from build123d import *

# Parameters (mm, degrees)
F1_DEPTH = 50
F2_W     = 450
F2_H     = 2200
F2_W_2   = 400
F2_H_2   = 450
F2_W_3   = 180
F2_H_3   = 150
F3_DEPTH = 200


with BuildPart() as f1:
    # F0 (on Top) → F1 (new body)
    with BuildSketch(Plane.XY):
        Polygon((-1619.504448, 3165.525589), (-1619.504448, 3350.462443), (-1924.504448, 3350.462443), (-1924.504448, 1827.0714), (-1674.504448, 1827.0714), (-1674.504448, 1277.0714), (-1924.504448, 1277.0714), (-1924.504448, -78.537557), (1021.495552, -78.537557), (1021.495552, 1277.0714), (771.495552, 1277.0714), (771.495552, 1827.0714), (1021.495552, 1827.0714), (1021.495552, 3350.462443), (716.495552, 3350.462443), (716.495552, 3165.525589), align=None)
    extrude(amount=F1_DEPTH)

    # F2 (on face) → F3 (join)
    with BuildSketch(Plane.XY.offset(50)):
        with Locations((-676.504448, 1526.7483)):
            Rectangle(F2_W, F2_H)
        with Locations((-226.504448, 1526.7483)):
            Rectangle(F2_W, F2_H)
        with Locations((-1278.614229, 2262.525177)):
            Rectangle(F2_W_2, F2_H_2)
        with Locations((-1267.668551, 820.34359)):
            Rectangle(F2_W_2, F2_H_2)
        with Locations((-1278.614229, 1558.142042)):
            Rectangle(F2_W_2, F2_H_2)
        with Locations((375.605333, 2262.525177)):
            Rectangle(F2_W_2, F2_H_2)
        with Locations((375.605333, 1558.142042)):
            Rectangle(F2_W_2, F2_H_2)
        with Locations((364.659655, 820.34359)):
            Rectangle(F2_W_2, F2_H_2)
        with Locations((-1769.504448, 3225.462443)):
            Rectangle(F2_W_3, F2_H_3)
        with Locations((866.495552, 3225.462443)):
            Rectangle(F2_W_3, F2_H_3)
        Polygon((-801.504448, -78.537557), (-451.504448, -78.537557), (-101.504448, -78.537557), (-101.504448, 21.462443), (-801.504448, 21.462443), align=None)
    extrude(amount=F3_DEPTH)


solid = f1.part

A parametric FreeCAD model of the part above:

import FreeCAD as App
import Part
import Sketcher

V = App.Vector
Q = App.Units.Quantity

doc = App.newDocument("Part")
body = doc.addObject("PartDesign::Body", "Body")

# Sketch on XY plane
sketch1 = body.newObject("Sketcher::SketchObject", "Sketch")
sketch1.AttachmentSupport = (doc.getObject("XY_Plane"), [""])
sketch1.MapMode = "FlatFace"
sketch1.addGeometry([
    Part.LineSegment(V(-1620, 3166, 0), V(-1620, 3350, 0)),  # 0
    Part.LineSegment(V(-1620, 3350, 0), V(-1925, 3350, 0)),  # 1
    Part.LineSegment(V(-1925, 3350, 0), V(-1925, 1827, 0)),  # 2
    Part.LineSegment(V(-1925, 1827, 0), V(-1675, 1827, 0)),  # 3
    Part.LineSegment(V(-1675, 1827, 0), V(-1675, 1277, 0)),  # 4
    Part.LineSegment(V(-1675, 1277, 0), V(-1925, 1277, 0)),  # 5
    Part.LineSegment(V(-1925, 1277, 0), V(-1925, -79, 0)),  # 6
    Part.LineSegment(V(-1925, -79, 0), V(1021, -79, 0)),  # 7
    Part.LineSegment(V(1021, -79, 0), V(1021, 1277, 0)),  # 8
    Part.LineSegment(V(1021, 1277, 0), V(771, 1277, 0)),  # 9
    Part.LineSegment(V(771, 1277, 0), V(771, 1827, 0)),  # 10
    Part.LineSegment(V(771, 1827, 0), V(1021, 1827, 0)),  # 11
    Part.LineSegment(V(1021, 1827, 0), V(1021, 3350, 0)),  # 12
    Part.LineSegment(V(1021, 3350, 0), V(716, 3350, 0)),  # 13
    Part.LineSegment(V(716, 3350, 0), V(716, 3166, 0)),  # 14
    Part.LineSegment(V(716, 3166, 0), V(-1620, 3166, 0)),  # 15
], False)
sketch1.addConstraint([
    Sketcher.Constraint("Coincident", 0, 2, 1, 1),
    Sketcher.Constraint("Coincident", 1, 2, 2, 1),
    Sketcher.Constraint("Coincident", 2, 2, 3, 1),
    Sketcher.Constraint("Coincident", 3, 2, 4, 1),
    Sketcher.Constraint("Coincident", 4, 2, 5, 1),
    Sketcher.Constraint("Coincident", 5, 2, 6, 1),
    Sketcher.Constraint("Coincident", 6, 2, 7, 1),
    Sketcher.Constraint("Coincident", 7, 2, 8, 1),
    Sketcher.Constraint("Coincident", 8, 2, 9, 1),
    Sketcher.Constraint("Coincident", 9, 2, 10, 1),
    Sketcher.Constraint("Coincident", 10, 2, 11, 1),
    Sketcher.Constraint("Coincident", 11, 2, 12, 1),
    Sketcher.Constraint("Coincident", 12, 2, 13, 1),
    Sketcher.Constraint("Coincident", 13, 2, 14, 1),
    Sketcher.Constraint("Coincident", 14, 2, 15, 1),
    Sketcher.Constraint("Coincident", 15, 2, 0, 1),
    Sketcher.Constraint("Vertical", 0),
    Sketcher.Constraint("Horizontal", 1),
    Sketcher.Constraint("Vertical", 2),
    Sketcher.Constraint("Horizontal", 3),
    Sketcher.Constraint("Vertical", 4),
    Sketcher.Constraint("Horizontal", 5),
    Sketcher.Constraint("Vertical", 6),
    Sketcher.Constraint("Horizontal", 7),
    Sketcher.Constraint("Vertical", 8),
    Sketcher.Constraint("Horizontal", 9),
    Sketcher.Constraint("Vertical", 10),
    Sketcher.Constraint("Horizontal", 11),
    Sketcher.Constraint("Vertical", 12),
    Sketcher.Constraint("Horizontal", 13),
    Sketcher.Constraint("Vertical", 14),
    Sketcher.Constraint("Horizontal", 15),
    Sketcher.Constraint("Horizontal", 5, 2, 8, 2),
    Sketcher.Constraint("Horizontal", 3, 2, 10, 2),
    Sketcher.Constraint("Horizontal", 1, 2, 12, 2),
    Sketcher.Constraint("Vertical", 2, 2, 5, 2),
    Sketcher.Constraint("Vertical", 8, 2, 11, 2),
    Sketcher.Constraint("Equal", 5, 9),
    Sketcher.Constraint("Equal", 1, 13),
    Sketcher.Constraint("DistanceX", 1, 2, 1, 1, Q("305 mm")),
    Sketcher.Constraint("DistanceX", 3, 1, 3, 2, Q("250 mm")),
    Sketcher.Constraint("DistanceX", 7, 1, 7, 2, Q("2946 mm")),
    Sketcher.Constraint("DistanceY", 4, 2, 4, 1, Q("550 mm")),
    Sketcher.Constraint("DistanceY", 6, 2, 1, 2, Q("3429 mm")),
    Sketcher.Constraint("DistanceY", -1, 1, 2, 2, Q("1827.0714 mm")),
    Sketcher.Constraint("DistanceY", 0, 1, 0, 2, Q("184.936854 mm")),
    Sketcher.Constraint("DistanceY", 2, 2, 2, 1, Q("1523.391043 mm")),
    Sketcher.Constraint("DistanceX", 0, 2, -1, 1, Q("1619.504448 mm")),
])
pad1 = body.newObject("PartDesign::Pad", "Pad")
pad1.Profile = sketch1
pad1.Length = 50

# Sketch on XY plane
sketch2 = body.newObject("Sketcher::SketchObject", "Sketch001")
sketch2.AttachmentSupport = (doc.getObject("XY_Plane"), [""])
sketch2.MapMode = "FlatFace"
sketch2.AttachmentOffset = App.Placement(V(0, 0, 50), App.Rotation())
sketch2.addGeometry([
    Part.LineSegment(V(-902, 2627, 0), V(-902, 427, 0)),  # 0
    Part.LineSegment(V(-902, 427, 0), V(-2, 427, 0)),  # 1
    Part.LineSegment(V(-2, 427, 0), V(-2, 2627, 0)),  # 2
    Part.LineSegment(V(-2, 2627, 0), V(-902, 2627, 0)),  # 3
    Part.LineSegment(V(-1479, 2488, 0), V(-1479, 2038, 0)),  # 4
    Part.LineSegment(V(-1479, 2038, 0), V(-1079, 2038, 0)),  # 5
    Part.LineSegment(V(-1079, 2038, 0), V(-1079, 2488, 0)),  # 6
    Part.LineSegment(V(-1079, 2488, 0), V(-1479, 2488, 0)),  # 7
    Part.LineSegment(V(-1468, 1045, 0), V(-1468, 595, 0)),  # 8
    Part.LineSegment(V(-1468, 595, 0), V(-1068, 595, 0)),  # 9
    Part.LineSegment(V(-1068, 595, 0), V(-1068, 1045, 0)),  # 10
    Part.LineSegment(V(-1068, 1045, 0), V(-1468, 1045, 0)),  # 11
    Part.LineSegment(V(-1479, 1783, 0), V(-1479, 1333, 0)),  # 12
    Part.LineSegment(V(-1479, 1333, 0), V(-1079, 1333, 0)),  # 13
    Part.LineSegment(V(-1079, 1333, 0), V(-1079, 1783, 0)),  # 14
    Part.LineSegment(V(-1079, 1783, 0), V(-1479, 1783, 0)),  # 15
    Part.LineSegment(V(176, 2488, 0), V(176, 2038, 0)),  # 16
    Part.LineSegment(V(176, 2038, 0), V(576, 2038, 0)),  # 17
    Part.LineSegment(V(576, 2038, 0), V(576, 2488, 0)),  # 18
    Part.LineSegment(V(576, 2488, 0), V(176, 2488, 0)),  # 19
    Part.LineSegment(V(176, 1783, 0), V(176, 1333, 0)),  # 20
    Part.LineSegment(V(176, 1333, 0), V(576, 1333, 0)),  # 21
    Part.LineSegment(V(576, 1333, 0), V(576, 1783, 0)),  # 22
    Part.LineSegment(V(576, 1783, 0), V(176, 1783, 0)),  # 23
    Part.LineSegment(V(165, 1045, 0), V(165, 595, 0)),  # 24
    Part.LineSegment(V(165, 595, 0), V(565, 595, 0)),  # 25
    Part.LineSegment(V(565, 595, 0), V(565, 1045, 0)),  # 26
    Part.LineSegment(V(565, 1045, 0), V(165, 1045, 0)),  # 27
    Part.LineSegment(V(-1860, 3300, 0), V(-1860, 3150, 0)),  # 28
    Part.LineSegment(V(-1860, 3150, 0), V(-1680, 3150, 0)),  # 29
    Part.LineSegment(V(-1680, 3150, 0), V(-1680, 3300, 0)),  # 30
    Part.LineSegment(V(-1680, 3300, 0), V(-1860, 3300, 0)),  # 31
    Part.LineSegment(V(776, 3300, 0), V(776, 3150, 0)),  # 32
    Part.LineSegment(V(776, 3150, 0), V(956, 3150, 0)),  # 33
    Part.LineSegment(V(956, 3150, 0), V(956, 3300, 0)),  # 34
    Part.LineSegment(V(956, 3300, 0), V(776, 3300, 0)),  # 35
    Part.LineSegment(V(-802, -79, 0), V(-102, -79, 0)),  # 36
    Part.LineSegment(V(-102, -79, 0), V(-102, 21, 0)),  # 37
    Part.LineSegment(V(-102, 21, 0), V(-802, 21, 0)),  # 38
    Part.LineSegment(V(-802, 21, 0), V(-802, -79, 0)),  # 39
], False)
sketch2.addConstraint([
    Sketcher.Constraint("Coincident", 0, 2, 1, 1),
    Sketcher.Constraint("Coincident", 1, 2, 2, 1),
    Sketcher.Constraint("Coincident", 2, 2, 3, 1),
    Sketcher.Constraint("Coincident", 3, 2, 0, 1),
    Sketcher.Constraint("Coincident", 4, 2, 5, 1),
    Sketcher.Constraint("Coincident", 5, 2, 6, 1),
    Sketcher.Constraint("Coincident", 6, 2, 7, 1),
    Sketcher.Constraint("Coincident", 7, 2, 4, 1),
    Sketcher.Constraint("Coincident", 8, 2, 9, 1),
    Sketcher.Constraint("Coincident", 9, 2, 10, 1),
    Sketcher.Constraint("Coincident", 10, 2, 11, 1),
    Sketcher.Constraint("Coincident", 11, 2, 8, 1),
    Sketcher.Constraint("Coincident", 12, 2, 13, 1),
    Sketcher.Constraint("Coincident", 13, 2, 14, 1),
    Sketcher.Constraint("Coincident", 14, 2, 15, 1),
    Sketcher.Constraint("Coincident", 15, 2, 12, 1),
    Sketcher.Constraint("Coincident", 16, 2, 17, 1),
    Sketcher.Constraint("Coincident", 17, 2, 18, 1),
    Sketcher.Constraint("Coincident", 18, 2, 19, 1),
    Sketcher.Constraint("Coincident", 19, 2, 16, 1),
    Sketcher.Constraint("Coincident", 20, 2, 21, 1),
    Sketcher.Constraint("Coincident", 21, 2, 22, 1),
    Sketcher.Constraint("Coincident", 22, 2, 23, 1),
    Sketcher.Constraint("Coincident", 23, 2, 20, 1),
    Sketcher.Constraint("Coincident", 24, 2, 25, 1),
    Sketcher.Constraint("Coincident", 25, 2, 26, 1),
    Sketcher.Constraint("Coincident", 26, 2, 27, 1),
    Sketcher.Constraint("Coincident", 27, 2, 24, 1),
    Sketcher.Constraint("Coincident", 28, 2, 29, 1),
    Sketcher.Constraint("Coincident", 29, 2, 30, 1),
    Sketcher.Constraint("Coincident", 30, 2, 31, 1),
    Sketcher.Constraint("Coincident", 31, 2, 28, 1),
    Sketcher.Constraint("Coincident", 32, 2, 33, 1),
    Sketcher.Constraint("Coincident", 33, 2, 34, 1),
    Sketcher.Constraint("Coincident", 34, 2, 35, 1),
    Sketcher.Constraint("Coincident", 35, 2, 32, 1),
    Sketcher.Constraint("Coincident", 36, 2, 37, 1),
    Sketcher.Constraint("Coincident", 37, 2, 38, 1),
    Sketcher.Constraint("Coincident", 38, 2, 39, 1),
    Sketcher.Constraint("Coincident", 39, 2, 36, 1),
    Sketcher.Constraint("Vertical", 0),
    Sketcher.Constraint("Horizontal", 1),
    Sketcher.Constraint("Vertical", 2),
    Sketcher.Constraint("Horizontal", 3),
    Sketcher.Constraint("Vertical", 4),
    Sketcher.Constraint("Horizontal", 5),
    Sketcher.Constraint("Vertical", 6),
    Sketcher.Constraint("Horizontal", 7),
    Sketcher.Constraint("Vertical", 8),
    Sketcher.Constraint("Horizontal", 9),
    Sketcher.Constraint("Vertical", 10),
    Sketcher.Constraint("Horizontal", 11),
    Sketcher.Constraint("Vertical", 12),
    Sketcher.Constraint("Horizontal", 13),
    Sketcher.Constraint("Vertical", 14),
    Sketcher.Constraint("Horizontal", 15),
    Sketcher.Constraint("Vertical", 16),
    Sketcher.Constraint("Horizontal", 17),
    Sketcher.Constraint("Vertical", 18),
    Sketcher.Constraint("Horizontal", 19),
    Sketcher.Constraint("Vertical", 20),
    Sketcher.Constraint("Horizontal", 21),
    Sketcher.Constraint("Vertical", 22),
    Sketcher.Constraint("Horizontal", 23),
    Sketcher.Constraint("Vertical", 24),
    Sketcher.Constraint("Horizontal", 25),
    Sketcher.Constraint("Vertical", 26),
    Sketcher.Constraint("Horizontal", 27),
    Sketcher.Constraint("Vertical", 28),
    Sketcher.Constraint("Horizontal", 29),
    Sketcher.Constraint("Vertical", 30),
    Sketcher.Constraint("Horizontal", 31),
    Sketcher.Constraint("Vertical", 32),
    Sketcher.Constraint("Horizontal", 33),
    Sketcher.Constraint("Vertical", 34),
    Sketcher.Constraint("Horizontal", 35),
    Sketcher.Constraint("Horizontal", 36),
    Sketcher.Constraint("Vertical", 37),
    Sketcher.Constraint("Horizontal", 38),
    Sketcher.Constraint("Vertical", 39),
    Sketcher.Constraint("Horizontal", 5, 2, 16, 2),
    Sketcher.Constraint("Horizontal", 7, 2, 18, 2),
    Sketcher.Constraint("Horizontal", 13, 2, 20, 2),
    Sketcher.Constraint("Horizontal", 15, 2, 22, 2),
    Sketcher.Constraint("Horizontal", 9, 2, 24, 2),
    Sketcher.Constraint("Horizontal", 11, 2, 26, 2),
    Sketcher.Constraint("Horizontal", 29, 2, 32, 2),
    Sketcher.Constraint("Horizontal", 31, 2, 34, 2),
    Sketcher.Constraint("Vertical", 7, 2, 12, 2),
    Sketcher.Constraint("Vertical", 6, 2, 13, 2),
    Sketcher.Constraint("Vertical", 19, 2, 20, 2),
    Sketcher.Constraint("Vertical", 18, 2, 21, 2),
    Sketcher.Constraint("Equal", 7, 9),
    Sketcher.Constraint("Equal", 15, 17),
    Sketcher.Constraint("Equal", 23, 25),
    Sketcher.Constraint("Equal", 31, 33),
    Sketcher.Constraint("Equal", 6, 8),
    Sketcher.Constraint("Equal", 10, 12),
    Sketcher.Constraint("DistanceX", 1, 1, 1, 2, Q("900 mm")),
    Sketcher.Constraint("DistanceX", 5, 1, 5, 2, Q("400 mm")),
    Sketcher.Constraint("DistanceX", 29, 1, 29, 2, Q("180 mm")),
    Sketcher.Constraint("DistanceX", 36, 1, 36, 2, Q("700 mm")),
    Sketcher.Constraint("DistanceY", 0, 2, 0, 1, Q("2200 mm")),
    Sketcher.Constraint("DistanceY", 4, 2, 4, 1, Q("450 mm")),
    Sketcher.Constraint("DistanceY", 28, 2, 28, 1, Q("150 mm")),
    Sketcher.Constraint("DistanceY", 37, 1, 37, 2, Q("100 mm")),
    Sketcher.Constraint("DistanceX", 28, 2, 3, 2, Q("958 mm")),
    Sketcher.Constraint("DistanceX", 2, 2, 32, 2, Q("778 mm")),
    Sketcher.Constraint("DistanceX", 36, 2, 1, 2, Q("100 mm")),
    Sketcher.Constraint("DistanceY", -1, 1, 0, 2, Q("426.7483 mm")),
    Sketcher.Constraint("DistanceX", 0, 2, -1, 1, Q("901.504448 mm")),
    Sketcher.Constraint("DistanceX", 4, 2, -1, 1, Q("1478.614229 mm")),
    Sketcher.Constraint("DistanceX", 8, 2, -1, 1, Q("1467.668551 mm")),
    Sketcher.Constraint("DistanceY", -1, 1, 8, 2, Q("595.34359 mm")),
    Sketcher.Constraint("DistanceY", -1, 1, 12, 2, Q("1333.142042 mm")),
    Sketcher.Constraint("DistanceX", 2, 2, 16, 2, Q("177.109781 mm")),
    Sketcher.Constraint("DistanceX", 24, 2, 20, 2, Q("10.945678 mm")),
    Sketcher.Constraint("DistanceY", -1, 1, 4, 2, Q("2037.525177 mm")),
    Sketcher.Constraint("DistanceY", -1, 1, 28, 2, Q("3150.462443 mm")),
    Sketcher.Constraint("DistanceY", 36, 2, -1, 1, Q("78.537557 mm")),
])
pad2 = body.newObject("PartDesign::Pad", "Pad001")
pad2.Profile = sketch2
pad2.Length = 200

doc.recompute()
